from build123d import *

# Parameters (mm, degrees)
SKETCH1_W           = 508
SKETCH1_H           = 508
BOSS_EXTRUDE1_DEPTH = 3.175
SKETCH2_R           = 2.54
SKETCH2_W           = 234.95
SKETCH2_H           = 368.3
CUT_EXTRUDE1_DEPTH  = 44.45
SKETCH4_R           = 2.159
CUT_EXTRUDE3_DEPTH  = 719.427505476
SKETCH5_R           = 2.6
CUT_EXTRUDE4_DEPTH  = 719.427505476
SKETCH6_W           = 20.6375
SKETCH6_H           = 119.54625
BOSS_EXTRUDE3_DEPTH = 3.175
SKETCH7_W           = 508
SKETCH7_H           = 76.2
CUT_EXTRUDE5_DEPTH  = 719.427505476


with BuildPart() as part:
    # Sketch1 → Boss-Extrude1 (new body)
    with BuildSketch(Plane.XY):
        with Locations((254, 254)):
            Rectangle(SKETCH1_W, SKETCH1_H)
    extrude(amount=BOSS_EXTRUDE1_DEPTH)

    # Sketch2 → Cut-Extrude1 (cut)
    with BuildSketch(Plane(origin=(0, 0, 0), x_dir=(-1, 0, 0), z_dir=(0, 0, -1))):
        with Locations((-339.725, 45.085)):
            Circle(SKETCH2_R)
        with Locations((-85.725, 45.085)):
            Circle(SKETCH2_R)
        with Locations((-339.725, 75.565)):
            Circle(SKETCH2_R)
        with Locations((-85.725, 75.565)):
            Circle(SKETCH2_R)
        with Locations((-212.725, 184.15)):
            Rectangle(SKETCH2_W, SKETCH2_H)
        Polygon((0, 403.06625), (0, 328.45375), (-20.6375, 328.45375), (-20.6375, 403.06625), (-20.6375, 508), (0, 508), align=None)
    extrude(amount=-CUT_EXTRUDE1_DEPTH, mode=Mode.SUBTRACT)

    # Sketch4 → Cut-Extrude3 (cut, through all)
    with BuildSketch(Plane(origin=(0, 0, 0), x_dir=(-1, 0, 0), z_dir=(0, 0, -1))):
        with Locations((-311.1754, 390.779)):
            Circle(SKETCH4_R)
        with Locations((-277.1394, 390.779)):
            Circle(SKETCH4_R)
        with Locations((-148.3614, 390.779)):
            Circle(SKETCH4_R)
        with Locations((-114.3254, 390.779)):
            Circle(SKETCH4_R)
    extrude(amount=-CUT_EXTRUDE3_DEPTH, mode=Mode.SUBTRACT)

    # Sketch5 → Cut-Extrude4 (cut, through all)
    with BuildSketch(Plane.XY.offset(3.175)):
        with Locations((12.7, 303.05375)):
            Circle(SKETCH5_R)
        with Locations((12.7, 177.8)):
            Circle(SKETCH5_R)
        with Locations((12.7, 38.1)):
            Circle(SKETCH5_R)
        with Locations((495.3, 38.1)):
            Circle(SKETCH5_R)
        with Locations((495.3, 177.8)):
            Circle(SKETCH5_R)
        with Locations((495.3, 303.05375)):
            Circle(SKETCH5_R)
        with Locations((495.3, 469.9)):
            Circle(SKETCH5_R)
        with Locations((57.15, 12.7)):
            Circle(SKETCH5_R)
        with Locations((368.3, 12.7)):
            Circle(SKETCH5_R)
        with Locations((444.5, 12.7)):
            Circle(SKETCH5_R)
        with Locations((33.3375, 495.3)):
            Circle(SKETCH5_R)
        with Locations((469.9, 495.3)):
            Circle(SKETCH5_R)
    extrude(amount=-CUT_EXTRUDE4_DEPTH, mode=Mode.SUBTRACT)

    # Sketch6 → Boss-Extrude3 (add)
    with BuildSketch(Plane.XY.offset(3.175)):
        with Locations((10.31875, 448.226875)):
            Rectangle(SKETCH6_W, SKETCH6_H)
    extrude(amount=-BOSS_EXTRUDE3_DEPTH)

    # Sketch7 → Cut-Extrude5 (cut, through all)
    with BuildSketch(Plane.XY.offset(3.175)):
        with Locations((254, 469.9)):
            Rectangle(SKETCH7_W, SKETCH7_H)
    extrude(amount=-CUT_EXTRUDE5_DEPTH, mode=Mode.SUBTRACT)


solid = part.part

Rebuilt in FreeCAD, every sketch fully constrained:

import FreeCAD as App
import Part
import Sketcher
from FreeCAD import Vector
Q = App.Units.Quantity

doc = App.newDocument("Part")
body = doc.addObject("PartDesign::Body", "Body")

# Sketch on XY plane
sketch1 = body.newObject("Sketcher::SketchObject", "Sketch")
sketch1.AttachmentSupport = (doc.getObject("XY_Plane"), [""])
sketch1.MapMode = "FlatFace"
sketch1.addGeometry([
    Part.LineSegment(Vector(0, 508, 0), Vector(0, 0, 0)),
    Part.LineSegment(Vector(0, 0, 0), Vector(508, 0, 0)),
    Part.LineSegment(Vector(508, 0, 0), Vector(508, 508, 0)),
    Part.LineSegment(Vector(508, 508, 0), Vector(0, 508, 0)),
], False)
sketch1.addConstraint([
    Sketcher.Constraint("Coincident", 0, 2, 1, 1),
    Sketcher.Constraint("Coincident", 1, 2, 2, 1),
    Sketcher.Constraint("Coincident", 2, 2, 3, 1),
    Sketcher.Constraint("Coincident", 3, 2, 0, 1),
    Sketcher.Constraint("Vertical", 0),
    Sketcher.Constraint("Horizontal", 1),
    Sketcher.Constraint("Vertical", 2),
    Sketcher.Constraint("Horizontal", 3),
    Sketcher.Constraint("Coincident", 0, 2, -1, 1),
    Sketcher.Constraint("Equal", 3, 0),
    Sketcher.Constraint("DistanceX", 1, 1, 1, 2, Q("20 in")),
])
pad1 = body.newObject("PartDesign::Pad", "Pad")
pad1.Profile = sketch1
pad1.Length = Q("0.125 in")

# Sketch on XY plane
sketch2 = body.newObject("Sketcher::SketchObject", "Sketch001")
sketch2.AttachmentSupport = (doc.getObject("XY_Plane"), [""])
sketch2.MapMode = "FlatFace"
sketch2.addGeometry([
    Part.Circle(Vector(339.725, 45.085, 0), Vector(0, 0, 1), 2.54),  # 0
    Part.Circle(Vector(85.725, 45.085, 0), Vector(0, 0, 1), 2.54),  # 1
    Part.Circle(Vector(339.725, 75.565, 0), Vector(0, 0, 1), 2.54),  # 2
    Part.Circle(Vector(85.725, 75.565, 0), Vector(0, 0, 1), 2.54),  # 3
    Part.LineSegment(Vector(330.2, 368.3, 0), Vector(330.2, 0, 0)),  # 4
    Part.LineSegment(Vector(330.2, 0, 0), Vector(95.25, 0, 0)),  # 5
    Part.LineSegment(Vector(95.25, 0, 0), Vector(95.25, 368.3, 0)),  # 6
    Part.LineSegment(Vector(95.25, 368.3, 0), Vector(330.2, 368.3, 0)),  # 7
    Part.LineSegment(Vector(0, 328.45375, 0), Vector(0, 508, 0)),  # 8
    Part.LineSegment(Vector(0, 508, 0), Vector(20.6375, 508, 0)),  # 9
    Part.LineSegment(Vector(20.6375, 508, 0), Vector(20.6375, 328.45375, 0)),  # 10
    Part.LineSegment(Vector(20.6375, 328.45375, 0), Vector(0, 328.45375, 0)),  # 11
], False)
sketch2.addConstraint([
    Sketcher.Constraint("Coincident", 4, 2, 5, 1),
    Sketcher.Constraint("Coincident", 5, 2, 6, 1),
    Sketcher.Constraint("Coincident", 6, 2, 7, 1),
    Sketcher.Constraint("Coincident", 7, 2, 4, 1),
    Sketcher.Constraint("Coincident", 8, 2, 9, 1),
    Sketcher.Constraint("Coincident", 9, 2, 10, 1),
    Sketcher.Constraint("Coincident", 10, 2, 11, 1),
    Sketcher.Constraint("Coincident", 11, 2, 8, 1),
    Sketcher.Constraint("Vertical", 4),
    Sketcher.Constraint("Horizontal", 5),
    Sketcher.Constraint("Vertical", 6),
    Sketcher.Constraint("Horizontal", 7),
    Sketcher.Constraint("Vertical", 8),
    Sketcher.Constraint("Horizontal", 9),
    Sketcher.Constraint("Vertical", 10),
    Sketcher.Constraint("Horizontal", 11),
    Sketcher.Constraint("Equal", 0, 1),
    Sketcher.Constraint("Equal", 1, 2),
    Sketcher.Constraint("Equal", 2, 3),
    Sketcher.Constraint("PointOnObject", 4, 2, -1),
    Sketcher.Constraint("PointOnObject", 8, 2, -2),
    Sketcher.Constraint("Horizontal", 0, 3, 1, 3),
    Sketcher.Constraint("Horizontal", 2, 3, 3, 3),
    Sketcher.Constraint("Vertical", 0, 3, 2, 3),
    Sketcher.Constraint("Vertical", 1, 3, 3, 3),
    Sketcher.Constraint("Diameter", 0, Q("0.2 in")),
    Sketcher.Constraint("DistanceY", 4, 2, 4, 1, Q("14.5 in")),
    Sketcher.Constraint("DistanceX", -1, 1, 4, 2, Q("13 in")),
    Sketcher.Constraint("DistanceY", -1, 1, 8, 2, Q("20 in")),
    Sketcher.Constraint("DistanceX", 1, 3, 0, 3, Q("10 in")),
    Sketcher.Constraint("DistanceX", 5, 2, 5, 1, Q("9.25 in")),
    Sketcher.Constraint("DistanceY", 0, 3, 2, 3, Q("1.2 in")),
    Sketcher.Constraint("DistanceX", 9, 1, 9, 2, Q("0.8125 in")),
    Sketcher.Constraint("DistanceX", -1, 1, 0, 3, Q("13.375 in")),
    Sketcher.Constraint("DistanceY", -1, 1, 0, 3, Q("1.775 in")),
    Sketcher.Constraint("DistanceY", 1, 3, 10, 2, Q("11.15625 in")),
])
pocket1 = body.newObject("PartDesign::Pocket", "Pocket")
pocket1.Profile = sketch2
pocket1.Length = Q("1.75 in")
pocket1.Reversed = True

# Sketch on XY plane
sketch3 = body.newObject("Sketcher::SketchObject", "Sketch002")
sketch3.AttachmentSupport = (doc.getObject("XY_Plane"), [""])
sketch3.MapMode = "FlatFace"
sketch3.addGeometry([
    Part.Circle(Vector(311.1754, 390.779, 0), Vector(0, 0, 1), 2.159),
    Part.Circle(Vector(277.1394, 390.779, 0), Vector(0, 0, 1), 2.159),
    Part.Circle(Vector(148.3614, 390.779, 0), Vector(0, 0, 1), 2.159),
    Part.Circle(Vector(114.3254, 390.779, 0), Vector(0, 0, 1), 2.159),
], False)
sketch3.addConstraint([
    Sketcher.Constraint("Equal", 0, 1),
    Sketcher.Constraint("Equal", 1, 2),
    Sketcher.Constraint("Equal", 2, 3),
    Sketcher.Constraint("Horizontal", 0, 3, 1, 3),
    Sketcher.Constraint("Horizontal", 1, 3, 2, 3),
    Sketcher.Constraint("Horizontal", 2, 3, 3, 3),
    Sketcher.Constraint("Diameter", 0, Q("0.17 in")),
    Sketcher.Constraint("DistanceX", 1, 3, 0, 3, Q("1.34 in")),
    Sketcher.Constraint("DistanceX", 2, 3, 1, 3, Q("5.07 in")),
    Sketcher.Constraint("DistanceX", 3, 3, 2, 3, Q("1.34 in")),
    Sketcher.Constraint("DistanceX", -1, 1, 0, 3, Q("12.251 in")),
    Sketcher.Constraint("DistanceY", -1, 1, 0, 3, Q("15.385 in")),
])
pocket2 = body.newObject("PartDesign::Pocket", "Pocket001")
pocket2.Profile = sketch3
pocket2.Type = "ThroughAll"
pocket2.Reversed = True

# Sketch on XY plane
sketch4 = body.newObject("Sketcher::SketchObject", "Sketch003")
sketch4.AttachmentSupport = (doc.getObject("XY_Plane"), [""])
sketch4.MapMode = "FlatFace"
sketch4.AttachmentOffset = App.Placement(Vector(0, 0, 0.125 * 25.4), App.Rotation())
sketch4.addGeometry([
    Part.Circle(Vector(12.7, 303.05375, 0), Vector(0, 0, 1), 2.6),  # 0
    Part.Circle(Vector(12.7, 177.8, 0), Vector(0, 0, 1), 2.6),  # 1
    Part.Circle(Vector(12.7, 38.1, 0), Vector(0, 0, 1), 2.6),  # 2
    Part.Circle(Vector(495.3, 38.1, 0), Vector(0, 0, 1), 2.6),  # 3
    Part.Circle(Vector(495.3, 177.8, 0), Vector(0, 0, 1), 2.6),  # 4
    Part.Circle(Vector(495.3, 303.05375, 0), Vector(0, 0, 1), 2.6),  # 5
    Part.Circle(Vector(495.3, 469.9, 0), Vector(0, 0, 1), 2.6),  # 6
    Part.Circle(Vector(57.15, 12.7, 0), Vector(0, 0, 1), 2.6),  # 7
    Part.Circle(Vector(368.3, 12.7, 0), Vector(0, 0, 1), 2.6),  # 8
    Part.Circle(Vector(444.5, 12.7, 0), Vector(0, 0, 1), 2.6),  # 9
    Part.Circle(Vector(33.3375, 495.3, 0), Vector(0, 0, 1), 2.6),  # 10
    Part.Circle(Vector(469.9, 495.3, 0), Vector(0, 0, 1), 2.6),  # 11
], False)
sketch4.addConstraint([
    Sketcher.Constraint("Equal", 0, 1),
    Sketcher.Constraint("Equal", 1, 2),
    Sketcher.Constraint("Equal", 2, 3),
    Sketcher.Constraint("Equal", 3, 4),
    Sketcher.Constraint("Equal", 4, 5),
    Sketcher.Constraint("Equal", 5, 6),
    Sketcher.Constraint("Equal", 6, 7),
    Sketcher.Constraint("Equal", 7, 8),
    Sketcher.Constraint("Equal", 8, 9),
    Sketcher.Constraint("Equal", 9, 10),
    Sketcher.Constraint("Equal", 10, 11),
    Sketcher.Constraint("Horizontal", 2, 3, 3, 3),
    Sketcher.Constraint("Horizontal", 1, 3, 4, 3),
    Sketcher.Constraint("Horizontal", 0, 3, 5, 3),
    Sketcher.Constraint("Horizontal", 7, 3, 8, 3),
    Sketcher.Constraint("Horizontal", 8, 3, 9, 3),
    Sketcher.Constraint("Horizontal", 10, 3, 11, 3),
    Sketcher.Constraint("Vertical", 0, 3, 1, 3),
    Sketcher.Constraint("Vertical", 1, 3, 2, 3),
    Sketcher.Constraint("Vertical", 3, 3, 4, 3),
    Sketcher.Constraint("Vertical", 4, 3, 5, 3),
    Sketcher.Constraint("Vertical", 5, 3, 6, 3),
    Sketcher.Constraint("DistanceY", -1, 1, 1, 3, Q("7 in")),
    Sketcher.Constraint("DistanceX", 2, 3, 3, 3, Q("19 in")),
    Sketcher.Constraint("DistanceY", 3, 3, 6, 3, Q("17 in")),
    Sketcher.Constraint("DistanceY", 7, 3, 2, 3, Q("1 in")),
    Sketcher.Constraint("DistanceX", 8, 3, 3, 3, Q("5 in")),
    Sketcher.Constraint("DistanceX", 9, 3, 3, 3, Q("2 in")),
    Sketcher.Constraint("DistanceY", 2, 3, 10, 3, Q("18 in")),
    Sketcher.Constraint("DistanceX", 11, 3, 6, 3, Q("1 in")),
    Sketcher.Constraint("DistanceX", -1, 1, 0, 3, Q("0.5 in")),
    Sketcher.Constraint("DistanceY", -1, 1, 2, 3, Q("1.5 in")),
    Sketcher.Constraint("Diameter", 0, 5.2),
    Sketcher.Constraint("DistanceX", -1, 1, 7, 3, Q("2.25 in")),
    Sketcher.Constraint("DistanceX", -1, 1, 10, 3, Q("1.3125 in")),
    Sketcher.Constraint("DistanceY", -1, 1, 0, 3, 303.05375),
])
pocket3 = body.newObject("PartDesign::Pocket", "Pocket002")
pocket3.Profile = sketch4
pocket3.Type = "ThroughAll"

# Sketch on XY plane
sketch5 = body.newObject("Sketcher::SketchObject", "Sketch004")
sketch5.AttachmentSupport = (doc.getObject("XY_Plane"), [""])
sketch5.MapMode = "FlatFace"
sketch5.AttachmentOffset = App.Placement(Vector(0, 0, 0.125 * 25.4), App.Rotation())
sketch5.addGeometry([
    Part.LineSegment(Vector(0, 508, 0), Vector(0, 388.45375, 0)),
    Part.LineSegment(Vector(0, 388.45375, 0), Vector(20.6375, 388.45375, 0)),
    Part.LineSegment(Vector(20.6375, 388.45375, 0), Vector(20.6375, 508, 0)),
    Part.LineSegment(Vector(20.6375, 508, 0), Vector(0, 508, 0)),
], False)
sketch5.addConstraint([
    Sketcher.Constraint("Coincident", 0, 2, 1, 1),
    Sketcher.Constraint("Coincident", 1, 2, 2, 1),
    Sketcher.Constraint("Coincident", 2, 2, 3, 1),
    Sketcher.Constraint("Coincident", 3, 2, 0, 1),
    Sketcher.Constraint("Vertical", 0),
    Sketcher.Constraint("Horizontal", 1),
    Sketcher.Constraint("Vertical", 2),
    Sketcher.Constraint("Horizontal", 3),
    Sketcher.Constraint("PointOnObject", 0, 2, -2),
    Sketcher.Constraint("DistanceY", -1, 1, 2, 2, Q("20 in")),
    Sketcher.Constraint("DistanceX", 1, 1, 1, 2, Q("0.8125 in")),
    Sketcher.Constraint("DistanceY", 0, 2, 0, 1, 119.54625),
])
pad2 = body.newObject("PartDesign::Pad", "Pad001")
pad2.Profile = sketch5
pad2.Length = Q("0.125 in")
pad2.Reversed = True

# Sketch on XY plane
sketch6 = body.newObject("Sketcher::SketchObject", "Sketch005")
sketch6.AttachmentSupport = (doc.getObject("XY_Plane"), [""])
sketch6.MapMode = "FlatFace"
sketch6.AttachmentOffset = App.Placement(Vector(0, 0, 0.125 * 25.4), App.Rotation())
sketch6.addGeometry([
    Part.LineSegment(Vector(0, 508, 0), Vector(0, 431.8, 0)),
    Part.LineSegment(Vector(0, 431.8, 0), Vector(508, 431.8, 0)),
    Part.LineSegment(Vector(508, 431.8, 0), Vector(508, 508, 0)),
    Part.LineSegment(Vector(508, 508, 0), Vector(0, 508, 0)),
], False)
sketch6.addConstraint([
    Sketcher.Constraint("Coincident", 0, 2, 1, 1),
    Sketcher.Constraint("Coincident", 1, 2, 2, 1),
    Sketcher.Constraint("Coincident", 2, 2, 3, 1),
    Sketcher.Constraint("Coincident", 3, 2, 0, 1),
    Sketcher.Constraint("Vertical", 0),
    Sketcher.Constraint("Horizontal", 1),
    Sketcher.Constraint("Vertical", 2),
    Sketcher.Constraint("Horizontal", 3),
    Sketcher.Constraint("PointOnObject", 0, 2, -2),
    Sketcher.Constraint("DistanceX", 1, 1, 1, 2, Q("20 in")),
    Sketcher.Constraint("DistanceY", 0, 2, 0, 1, Q("3 in")),
    Sketcher.Constraint("DistanceY", -1, 1, 0, 2, Q("17 in")),
])
pocket4 = body.newObject("PartDesign::Pocket", "Pocket003")
pocket4.Profile = sketch6
pocket4.Type = "ThroughAll"

doc.recompute()
